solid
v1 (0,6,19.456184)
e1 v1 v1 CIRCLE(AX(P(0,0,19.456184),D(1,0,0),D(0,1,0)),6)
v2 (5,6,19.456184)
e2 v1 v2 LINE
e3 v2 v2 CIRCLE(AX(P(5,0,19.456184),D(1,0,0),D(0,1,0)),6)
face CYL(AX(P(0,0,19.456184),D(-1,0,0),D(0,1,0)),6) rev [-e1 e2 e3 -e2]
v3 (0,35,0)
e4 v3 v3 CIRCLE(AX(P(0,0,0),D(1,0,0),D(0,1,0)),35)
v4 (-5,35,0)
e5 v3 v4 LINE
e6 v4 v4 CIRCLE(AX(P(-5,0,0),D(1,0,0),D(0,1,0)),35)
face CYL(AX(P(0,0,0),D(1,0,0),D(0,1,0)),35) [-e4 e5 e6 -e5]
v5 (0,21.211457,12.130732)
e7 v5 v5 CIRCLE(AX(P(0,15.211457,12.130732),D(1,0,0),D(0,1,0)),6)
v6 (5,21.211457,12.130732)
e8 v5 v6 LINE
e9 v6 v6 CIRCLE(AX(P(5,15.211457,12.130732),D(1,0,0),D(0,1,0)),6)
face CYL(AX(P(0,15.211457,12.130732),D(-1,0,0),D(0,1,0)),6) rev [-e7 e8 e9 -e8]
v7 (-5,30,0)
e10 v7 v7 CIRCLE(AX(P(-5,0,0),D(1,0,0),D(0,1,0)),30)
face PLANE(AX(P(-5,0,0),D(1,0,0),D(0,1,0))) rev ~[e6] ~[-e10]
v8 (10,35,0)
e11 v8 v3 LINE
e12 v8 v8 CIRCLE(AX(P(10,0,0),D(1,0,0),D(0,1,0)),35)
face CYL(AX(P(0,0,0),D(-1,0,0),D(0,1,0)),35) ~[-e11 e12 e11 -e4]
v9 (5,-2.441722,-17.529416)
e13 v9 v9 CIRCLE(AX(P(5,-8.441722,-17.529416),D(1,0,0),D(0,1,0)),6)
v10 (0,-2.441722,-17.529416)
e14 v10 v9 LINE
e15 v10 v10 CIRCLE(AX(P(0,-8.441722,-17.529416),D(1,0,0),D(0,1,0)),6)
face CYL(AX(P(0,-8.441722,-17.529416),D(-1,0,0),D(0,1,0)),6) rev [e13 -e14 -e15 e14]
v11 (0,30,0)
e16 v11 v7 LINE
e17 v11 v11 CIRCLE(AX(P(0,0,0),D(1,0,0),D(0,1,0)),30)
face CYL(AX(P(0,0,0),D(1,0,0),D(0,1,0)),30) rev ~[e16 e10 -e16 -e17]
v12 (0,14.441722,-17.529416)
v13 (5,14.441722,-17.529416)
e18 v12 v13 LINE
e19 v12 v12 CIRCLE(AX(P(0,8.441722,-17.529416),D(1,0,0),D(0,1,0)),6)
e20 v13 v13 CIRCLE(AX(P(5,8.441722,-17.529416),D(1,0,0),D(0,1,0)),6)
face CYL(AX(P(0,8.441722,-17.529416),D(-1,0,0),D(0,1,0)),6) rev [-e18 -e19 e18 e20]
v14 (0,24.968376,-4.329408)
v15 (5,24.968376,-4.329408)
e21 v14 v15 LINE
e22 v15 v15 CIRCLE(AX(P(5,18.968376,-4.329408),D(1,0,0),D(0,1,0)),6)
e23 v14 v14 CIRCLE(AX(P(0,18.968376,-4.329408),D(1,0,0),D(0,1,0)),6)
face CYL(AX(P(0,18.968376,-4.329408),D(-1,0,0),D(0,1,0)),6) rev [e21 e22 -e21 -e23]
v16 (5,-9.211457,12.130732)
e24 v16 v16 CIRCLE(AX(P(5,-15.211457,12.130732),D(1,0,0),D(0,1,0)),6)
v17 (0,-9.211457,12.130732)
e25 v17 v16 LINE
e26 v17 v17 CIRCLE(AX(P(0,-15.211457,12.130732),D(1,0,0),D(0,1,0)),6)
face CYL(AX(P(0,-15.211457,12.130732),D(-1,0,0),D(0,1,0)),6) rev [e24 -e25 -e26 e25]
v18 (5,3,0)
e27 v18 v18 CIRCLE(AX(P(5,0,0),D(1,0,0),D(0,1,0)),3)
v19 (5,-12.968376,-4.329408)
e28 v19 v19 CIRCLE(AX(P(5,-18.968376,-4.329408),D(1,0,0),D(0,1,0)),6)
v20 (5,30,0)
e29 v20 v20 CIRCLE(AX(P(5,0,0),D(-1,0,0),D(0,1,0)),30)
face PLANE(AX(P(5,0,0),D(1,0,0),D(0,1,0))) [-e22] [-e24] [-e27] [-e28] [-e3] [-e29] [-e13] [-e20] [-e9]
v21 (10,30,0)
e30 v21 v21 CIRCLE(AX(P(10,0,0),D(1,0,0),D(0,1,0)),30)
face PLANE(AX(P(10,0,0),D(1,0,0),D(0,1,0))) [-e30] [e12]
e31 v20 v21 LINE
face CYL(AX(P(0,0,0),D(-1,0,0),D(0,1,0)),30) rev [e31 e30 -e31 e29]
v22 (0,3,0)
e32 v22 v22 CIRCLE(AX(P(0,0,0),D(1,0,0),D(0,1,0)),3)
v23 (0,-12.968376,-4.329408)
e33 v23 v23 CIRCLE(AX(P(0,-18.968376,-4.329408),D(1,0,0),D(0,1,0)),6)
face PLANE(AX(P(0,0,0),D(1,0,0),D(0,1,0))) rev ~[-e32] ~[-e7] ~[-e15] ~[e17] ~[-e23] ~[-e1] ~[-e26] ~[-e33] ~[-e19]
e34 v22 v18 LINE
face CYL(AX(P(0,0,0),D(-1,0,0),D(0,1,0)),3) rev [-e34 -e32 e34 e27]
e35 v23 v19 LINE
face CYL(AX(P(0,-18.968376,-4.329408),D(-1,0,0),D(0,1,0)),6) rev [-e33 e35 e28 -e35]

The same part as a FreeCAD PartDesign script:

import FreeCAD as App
import Part
import Sketcher
from FreeCAD import Vector
Q = App.Units.Quantity

doc = App.newDocument("Part")
body = doc.addObject("PartDesign::Body", "Body")

# Sketch on YZ plane
sketch1 = body.newObject("Sketcher::SketchObject", "Sketch")
sketch1.AttachmentSupport = (doc.getObject("YZ_Plane"), [""])
sketch1.MapMode = "FlatFace"
sketch1.addGeometry([
    Part.Circle(Vector(0, 0, 0), Vector(0, 0, 1), 35),  # 0
    Part.Circle(Vector(-8.4, -17.5, 0), Vector(0, 0, 1), 6),  # 1
    Part.Circle(Vector(-19, -4.3, 0), Vector(0, 0, 1), 6),  # 2
    Part.Circle(Vector(8.4, -17.5, 0), Vector(0, 0, 1), 6),  # 3
    Part.Circle(Vector(0, 0, 0), Vector(0, 0, 1), 3),  # 4
    Part.Circle(Vector(19, -4.3, 0), Vector(0, 0, 1), 6),  # 5
    Part.Circle(Vector(-15.2, 12.1, 0), Vector(0, 0, 1), 6),  # 6
    Part.Circle(Vector(15.2, 12.1, 0), Vector(0, 0, 1), 6),  # 7
    Part.Circle(Vector(0, 19.5, 0), Vector(0, 0, 1), 6),  # 8
], False)
sketch1.addConstraint([
    Sketcher.Constraint("Coincident", 0, 3, -1, 1),
    Sketcher.Constraint("Coincident", 4, 3, -1, 1),
    Sketcher.Constraint("Equal", 1, 2),
    Sketcher.Constraint("Equal", 2, 3),
    Sketcher.Constraint("Equal", 3, 5),
    Sketcher.Constraint("Equal", 5, 6),
    Sketcher.Constraint("Equal", 6, 7),
    Sketcher.Constraint("Equal", 7, 8),
    Sketcher.Constraint("Symmetric", 1, 3, 3, 3, -2),
    Sketcher.Constraint("Symmetric", 2, 3, 5, 3, -2),
    Sketcher.Constraint("Symmetric", 6, 3, 7, 3, -2),
    Sketcher.Constraint("PointOnObject", 8, 3, -2),
    Sketcher.Constraint("Diameter", 0, Q("70 mm")),
    Sketcher.Constraint("Diameter", 1, Q("12 mm")),
    Sketcher.Constraint("Diameter", 4, Q("6 mm")),
    Sketcher.Constraint("DistanceX", 2, 3, 5, 3, Q("37.936752 mm")),
    Sketcher.Constraint("DistanceX", 2, 3, 6, 3, Q("3.756919 mm")),
    Sketcher.Constraint("DistanceY", 2, 3, 6, 3, Q("16.46014 mm")),
    Sketcher.Constraint("DistanceX", 1, 3, -1, 1, Q("8.441722 mm")),
    Sketcher.Constraint("DistanceY", 1, 3, -1, 1, Q("17.529416 mm")),
    Sketcher.Constraint("DistanceY", 2, 3, -1, 1, Q("4.329408 mm")),
    Sketcher.Constraint("DistanceY", -1, 1, 8, 3, Q("19.456184 mm")),
])
pad1 = body.newObject("PartDesign::Pad", "Pad")
pad1.Profile = sketch1
pad1.Length = 5

# Sketch on YZ plane
sketch2 = body.newObject("Sketcher::SketchObject", "Sketch001")
sketch2.AttachmentSupport = (doc.getObject("YZ_Plane"), [""])
sketch2.MapMode = "FlatFace"
sketch2.addGeometry([
    Part.Circle(Vector(0, 0, 0), Vector(0, 0, 1), 35),
    Part.Circle(Vector(0, 0, 0), Vector(0, 0, 1), 30),
], False)
sketch2.addConstraint([
    Sketcher.Constraint("Coincident", 0, 3, -1, 1),
    Sketcher.Constraint("Coincident", 1, 3, -1, 1),
    Sketcher.Constraint("Diameter", 0, Q("70 mm")),
    Sketcher.Constraint("Diameter", 1, Q("60 mm")),
])
pad2 = body.newObject("PartDesign::Pad", "Pad001")
pad2.Profile = sketch2
pad2.Type = "TwoLengths"
pad2.Length = 10
pad2.Length2 = 5

doc.recompute()
